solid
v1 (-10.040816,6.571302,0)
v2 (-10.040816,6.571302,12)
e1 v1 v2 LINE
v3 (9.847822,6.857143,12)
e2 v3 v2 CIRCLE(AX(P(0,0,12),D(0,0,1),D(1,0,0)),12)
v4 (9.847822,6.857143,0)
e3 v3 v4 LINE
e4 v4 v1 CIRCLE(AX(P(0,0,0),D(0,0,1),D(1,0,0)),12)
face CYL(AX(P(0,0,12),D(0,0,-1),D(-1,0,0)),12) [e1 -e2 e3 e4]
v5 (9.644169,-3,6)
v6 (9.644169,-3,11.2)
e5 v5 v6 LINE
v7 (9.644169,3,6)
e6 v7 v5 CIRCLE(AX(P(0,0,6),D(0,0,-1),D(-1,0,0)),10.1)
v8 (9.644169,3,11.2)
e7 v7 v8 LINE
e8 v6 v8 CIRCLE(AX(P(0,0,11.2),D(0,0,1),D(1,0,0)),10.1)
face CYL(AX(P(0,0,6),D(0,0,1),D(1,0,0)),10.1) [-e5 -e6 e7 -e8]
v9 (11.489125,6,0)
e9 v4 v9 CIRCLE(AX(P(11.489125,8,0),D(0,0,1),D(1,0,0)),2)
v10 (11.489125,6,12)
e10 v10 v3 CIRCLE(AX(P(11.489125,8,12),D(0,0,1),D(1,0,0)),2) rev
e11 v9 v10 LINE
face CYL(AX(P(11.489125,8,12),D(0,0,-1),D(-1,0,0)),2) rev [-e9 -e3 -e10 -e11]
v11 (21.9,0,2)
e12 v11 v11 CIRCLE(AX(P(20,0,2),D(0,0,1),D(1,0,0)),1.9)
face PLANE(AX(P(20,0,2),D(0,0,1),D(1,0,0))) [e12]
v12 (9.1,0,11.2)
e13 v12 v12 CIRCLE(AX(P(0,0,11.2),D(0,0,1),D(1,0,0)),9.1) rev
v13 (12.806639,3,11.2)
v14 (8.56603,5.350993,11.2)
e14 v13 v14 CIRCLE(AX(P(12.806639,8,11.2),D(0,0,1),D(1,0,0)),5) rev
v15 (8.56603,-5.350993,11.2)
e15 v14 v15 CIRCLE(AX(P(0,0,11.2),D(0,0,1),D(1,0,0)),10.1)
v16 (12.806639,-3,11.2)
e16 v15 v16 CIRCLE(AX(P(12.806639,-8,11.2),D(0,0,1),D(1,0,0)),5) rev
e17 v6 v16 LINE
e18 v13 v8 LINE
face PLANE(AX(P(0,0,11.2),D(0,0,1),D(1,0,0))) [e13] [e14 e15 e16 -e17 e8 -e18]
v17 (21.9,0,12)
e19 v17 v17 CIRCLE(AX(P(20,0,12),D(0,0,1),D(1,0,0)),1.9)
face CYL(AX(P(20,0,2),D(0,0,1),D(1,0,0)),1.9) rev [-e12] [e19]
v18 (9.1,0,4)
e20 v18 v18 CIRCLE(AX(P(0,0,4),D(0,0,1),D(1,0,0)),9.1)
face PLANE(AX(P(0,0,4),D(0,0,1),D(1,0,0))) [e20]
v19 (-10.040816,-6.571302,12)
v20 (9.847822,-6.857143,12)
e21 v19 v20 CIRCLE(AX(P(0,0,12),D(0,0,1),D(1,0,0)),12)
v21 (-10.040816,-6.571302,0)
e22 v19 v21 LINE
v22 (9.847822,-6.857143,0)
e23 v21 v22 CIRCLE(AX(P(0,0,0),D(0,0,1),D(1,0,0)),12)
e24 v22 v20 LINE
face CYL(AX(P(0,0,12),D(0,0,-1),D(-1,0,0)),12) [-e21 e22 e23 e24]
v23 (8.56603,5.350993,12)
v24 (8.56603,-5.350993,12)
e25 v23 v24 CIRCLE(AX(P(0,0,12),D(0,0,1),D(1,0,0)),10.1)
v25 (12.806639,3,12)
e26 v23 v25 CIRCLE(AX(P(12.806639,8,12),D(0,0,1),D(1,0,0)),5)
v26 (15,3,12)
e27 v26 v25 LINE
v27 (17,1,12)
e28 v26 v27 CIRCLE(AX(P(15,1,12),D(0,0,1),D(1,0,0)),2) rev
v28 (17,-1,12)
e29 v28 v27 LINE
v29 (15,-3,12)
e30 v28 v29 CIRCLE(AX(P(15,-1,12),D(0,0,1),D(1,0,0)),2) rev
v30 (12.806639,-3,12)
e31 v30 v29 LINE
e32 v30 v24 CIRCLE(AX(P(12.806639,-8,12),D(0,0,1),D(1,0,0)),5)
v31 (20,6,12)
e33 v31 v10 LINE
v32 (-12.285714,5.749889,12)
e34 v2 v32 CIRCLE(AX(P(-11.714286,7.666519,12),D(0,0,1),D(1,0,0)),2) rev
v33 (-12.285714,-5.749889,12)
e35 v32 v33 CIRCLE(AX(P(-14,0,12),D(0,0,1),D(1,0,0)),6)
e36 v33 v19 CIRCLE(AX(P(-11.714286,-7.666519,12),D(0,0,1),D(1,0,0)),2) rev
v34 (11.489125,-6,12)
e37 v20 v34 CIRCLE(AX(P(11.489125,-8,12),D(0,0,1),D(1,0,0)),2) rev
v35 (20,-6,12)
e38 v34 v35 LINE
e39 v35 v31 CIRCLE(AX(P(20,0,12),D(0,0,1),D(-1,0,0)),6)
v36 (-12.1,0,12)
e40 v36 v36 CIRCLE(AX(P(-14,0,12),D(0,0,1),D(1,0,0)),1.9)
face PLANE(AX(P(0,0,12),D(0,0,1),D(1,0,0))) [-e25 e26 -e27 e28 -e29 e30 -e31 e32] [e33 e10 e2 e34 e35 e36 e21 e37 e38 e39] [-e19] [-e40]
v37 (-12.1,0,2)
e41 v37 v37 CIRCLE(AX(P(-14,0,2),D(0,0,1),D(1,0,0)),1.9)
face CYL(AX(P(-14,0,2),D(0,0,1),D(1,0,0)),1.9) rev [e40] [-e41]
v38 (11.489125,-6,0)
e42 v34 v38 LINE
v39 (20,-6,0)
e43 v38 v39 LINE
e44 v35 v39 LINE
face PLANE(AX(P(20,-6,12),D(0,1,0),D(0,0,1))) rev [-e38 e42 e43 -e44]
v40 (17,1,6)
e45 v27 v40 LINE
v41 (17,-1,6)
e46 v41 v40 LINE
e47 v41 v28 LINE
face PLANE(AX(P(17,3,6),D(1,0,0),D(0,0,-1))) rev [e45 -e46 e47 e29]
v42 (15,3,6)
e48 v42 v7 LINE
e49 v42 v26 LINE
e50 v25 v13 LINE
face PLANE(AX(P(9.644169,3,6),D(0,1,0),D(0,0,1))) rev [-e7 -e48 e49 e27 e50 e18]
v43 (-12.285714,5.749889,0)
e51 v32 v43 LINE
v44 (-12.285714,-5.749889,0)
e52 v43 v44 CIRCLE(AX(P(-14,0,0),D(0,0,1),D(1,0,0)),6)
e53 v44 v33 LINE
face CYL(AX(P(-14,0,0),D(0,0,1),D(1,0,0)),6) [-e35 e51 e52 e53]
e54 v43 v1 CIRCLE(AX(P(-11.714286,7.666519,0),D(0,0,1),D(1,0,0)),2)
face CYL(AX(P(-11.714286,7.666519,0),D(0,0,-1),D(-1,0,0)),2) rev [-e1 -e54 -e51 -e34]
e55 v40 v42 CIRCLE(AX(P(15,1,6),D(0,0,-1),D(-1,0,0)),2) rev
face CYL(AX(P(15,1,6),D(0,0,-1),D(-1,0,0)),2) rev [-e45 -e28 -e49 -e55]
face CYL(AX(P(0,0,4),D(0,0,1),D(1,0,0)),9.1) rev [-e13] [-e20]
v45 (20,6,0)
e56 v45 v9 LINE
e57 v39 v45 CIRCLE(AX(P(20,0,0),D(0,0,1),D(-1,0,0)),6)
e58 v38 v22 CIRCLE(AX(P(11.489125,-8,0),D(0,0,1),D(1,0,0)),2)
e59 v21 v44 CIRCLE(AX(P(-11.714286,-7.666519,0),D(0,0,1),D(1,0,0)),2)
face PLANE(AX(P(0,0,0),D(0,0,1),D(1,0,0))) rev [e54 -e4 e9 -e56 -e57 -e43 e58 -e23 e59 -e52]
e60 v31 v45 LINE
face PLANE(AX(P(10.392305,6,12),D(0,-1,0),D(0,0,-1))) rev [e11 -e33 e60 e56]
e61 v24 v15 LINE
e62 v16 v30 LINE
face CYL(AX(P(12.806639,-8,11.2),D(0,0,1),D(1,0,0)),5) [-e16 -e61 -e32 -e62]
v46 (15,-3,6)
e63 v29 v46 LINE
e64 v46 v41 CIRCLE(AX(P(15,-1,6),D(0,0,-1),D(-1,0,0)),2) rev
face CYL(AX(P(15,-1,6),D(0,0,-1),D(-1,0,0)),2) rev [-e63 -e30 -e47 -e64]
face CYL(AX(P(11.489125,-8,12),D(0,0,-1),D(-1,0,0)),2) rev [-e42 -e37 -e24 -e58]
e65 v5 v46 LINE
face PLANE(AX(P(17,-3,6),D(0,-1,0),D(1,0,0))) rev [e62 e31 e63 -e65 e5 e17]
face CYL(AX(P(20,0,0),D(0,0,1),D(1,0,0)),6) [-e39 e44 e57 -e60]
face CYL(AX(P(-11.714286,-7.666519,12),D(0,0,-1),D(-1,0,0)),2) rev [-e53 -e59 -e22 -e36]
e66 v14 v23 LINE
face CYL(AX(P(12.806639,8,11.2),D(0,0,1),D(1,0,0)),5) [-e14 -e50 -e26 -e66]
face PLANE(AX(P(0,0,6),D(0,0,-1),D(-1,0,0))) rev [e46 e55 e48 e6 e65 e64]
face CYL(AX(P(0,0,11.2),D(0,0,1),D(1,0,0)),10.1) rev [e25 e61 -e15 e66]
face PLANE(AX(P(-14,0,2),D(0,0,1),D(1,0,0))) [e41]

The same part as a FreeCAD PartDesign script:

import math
import FreeCAD as App
import Part
import Sketcher
from FreeCAD import Vector


def edges_at(feature, points):
    """Names of the edges that pass closest to the given points."""
    edges = feature.Shape.Edges
    near = lambda p: min(range(len(edges)), key=lambda i: edges[i].distToShape(Part.Vertex(*p))[0])
    return sorted({f"Edge{near(p) + 1}" for p in points})

doc = App.newDocument("Part")
params = doc.addObject("Spreadsheet::Sheet", "Params")
for row, (alias, value) in enumerate([
    ("sketch1_radius", "12 mm"),
    ("sketch1_height", "12 mm"),
    ("pad1_length", "12 mm"),
    ("sketch2_diameter", "18.2 mm"),
    ("pocket1_length", "8 mm"),
    ("sketch3_radius", "10.1 mm"),
    ("sketch3_height", "6 mm"),
    ("pocket2_length", "6 mm"),
    ("sketch4_radius", "10.1 mm"),
    ("sketch4_height", "6 mm"),
    ("pocket3_length", "0.8 mm"),
    ("sketch5_radius", "6 mm"),
    ("pad2_length", "12 mm"),
    ("sketch6_diameter", "3.8 mm"),
    ("pocket4_length", "10 mm"),
    ("fillet_radius", "5 mm"),
    ("fillet2_radius", "2 mm"),
], start=1):
    params.set(f"A{row}", alias)
    params.set(f"B{row}", "=" + value)
    params.setAlias(f"B{row}", alias)

body = doc.addObject("PartDesign::Body", "Body")

# Sketch on XY plane
sketch1 = doc.addObject("Sketcher::SketchObject", "Sketch")
body.addObject(sketch1)
sketch1.AttachmentSupport = (doc.XY_Plane, [""])
sketch1.MapMode = "FlatFace"
sketch1.addGeometry([
    Part.LineSegment(Vector(20, 6, 0), Vector(10.392305, 6, 0)),
    Part.ArcOfCircle(Part.Circle(Vector(0, 0, 0), Vector(0, 0, 1), 12), math.radians(30), math.radians(330)),
    Part.LineSegment(Vector(10.392305, -6, 0), Vector(20, -6, 0)),
    Part.LineSegment(Vector(20, -6, 0), Vector(20, 6, 0)),
], False)
sketch1.addConstraint([
    Sketcher.Constraint("Coincident", 0, 2, 1, 1),
    Sketcher.Constraint("Coincident", 1, 2, 2, 1),
    Sketcher.Constraint("Coincident", 2, 2, 3, 1),
    Sketcher.Constraint("Coincident", 3, 2, 0, 1),
    Sketcher.Constraint("Horizontal", 0),
    Sketcher.Constraint("Horizontal", 2),
    Sketcher.Constraint("Vertical", 3),
    Sketcher.Constraint("Coincident", 1, 3, -1, 1),
    Sketcher.Constraint("Vertical", 0, 2, 1, 2),
    Sketcher.Constraint("Radius", 1, 12.0),
    Sketcher.Constraint("DistanceY", 3, 1, 3, 2, 12.0),
    Sketcher.Constraint("DistanceX", -1, 1, 2, 2, 20.0),
])
sketch1.setExpression("Constraints[9]", "Params.sketch1_radius")
sketch1.setExpression("Constraints[10]", "Params.sketch1_height")
pad1 = doc.addObject("PartDesign::Pad", "Pad")
body.addObject(pad1)
pad1.Profile = sketch1
pad1.setExpression("Length", "Params.pad1_length")

# Sketch on XY plane
sketch2 = doc.addObject("Sketcher::SketchObject", "Sketch001")
body.addObject(sketch2)
sketch2.AttachmentSupport = (doc.XY_Plane, [""])
sketch2.MapMode = "FlatFace"
sketch2.AttachmentOffset = App.Placement(Vector(0, 0, 12), App.Rotation())
sketch2.addGeometry(Part.Circle(Vector(0, 0, 0), Vector(0, 0, 1), 9.1), False)
sketch2.addConstraint([
    Sketcher.Constraint("Coincident", 0, 3, -1, 1),
    Sketcher.Constraint("Diameter", 0, 18.2),
])
sketch2.setExpression("Constraints[1]", "Params.sketch2_diameter")
pocket1 = doc.addObject("PartDesign::Pocket", "Pocket")
body.addObject(pocket1)
pocket1.Profile = sketch2
pocket1.setExpression("Length", "Params.pocket1_length")

# Sketch on XY plane
sketch3 = doc.addObject("Sketcher::SketchObject", "Sketch002")
body.addObject(sketch3)
sketch3.AttachmentSupport = (doc.XY_Plane, [""])
sketch3.MapMode = "FlatFace"
sketch3.AttachmentOffset = App.Placement(Vector(0, 0, 12), App.Rotation())
sketch3.addGeometry([
    Part.LineSegment(Vector(17, 3, 0), Vector(9.644169, 3, 0)),
    Part.ArcOfCircle(Part.Circle(Vector(0, 0, 0), Vector(0, 0, 1), 10.1), math.radians(-17.279287), math.radians(17.279287)),
    Part.LineSegment(Vector(9.644169, -3, 0), Vector(17, -3, 0)),
    Part.LineSegment(Vector(17, -3, 0), Vector(17, 3, 0)),
], False)
sketch3.addConstraint([
    Sketcher.Constraint("Coincident", 0, 2, 1, 2),
    Sketcher.Constraint("Coincident", 1, 1, 2, 1),
    Sketcher.Constraint("Coincident", 2, 2, 3, 1),
    Sketcher.Constraint("Coincident", 3, 2, 0, 1),
    Sketcher.Constraint("Horizontal", 0),
    Sketcher.Constraint("Horizontal", 2),
    Sketcher.Constraint("Vertical", 3),
    Sketcher.Constraint("Coincident", 1, 3, -1, 1),
    Sketcher.Constraint("Vertical", 0, 2, 1, 1),
    Sketcher.Constraint("Radius", 1, 10.1),
    Sketcher.Constraint("DistanceY", 3, 1, 3, 2, 6.0),
    Sketcher.Constraint("DistanceX", -1, 1, 2, 2, 17.0),
])
sketch3.setExpression("Constraints[9]", "Params.sketch3_radius")
sketch3.setExpression("Constraints[10]", "Params.sketch3_height")
pocket2 = doc.addObject("PartDesign::Pocket", "Pocket001")
body.addObject(pocket2)
pocket2.Profile = sketch3
pocket2.setExpression("Length", "Params.pocket2_length")

# Sketch on XY plane
sketch4 = doc.addObject("Sketcher::SketchObject", "Sketch003")
body.addObject(sketch4)
sketch4.AttachmentSupport = (doc.XY_Plane, [""])
sketch4.MapMode = "FlatFace"
sketch4.AttachmentOffset = App.Placement(Vector(0, 0, 12), App.Rotation())
sketch4.addGeometry([
    Part.LineSegment(Vector(17, -3, 0), Vector(17, 3, 0)),
    Part.LineSegment(Vector(17, 3, 0), Vector(9.644169, 3, 0)),
    Part.ArcOfCircle(Part.Circle(Vector(0, 0, 0), Vector(0, 0, 1), 10.1), math.radians(17.279287), math.radians(342.720713)),
    Part.LineSegment(Vector(9.644169, -3, 0), Vector(17, -3, 0)),
], False)
sketch4.addConstraint([
    Sketcher.Constraint("Coincident", 0, 2, 1, 1),
    Sketcher.Constraint("Coincident", 1, 2, 2, 1),
    Sketcher.Constraint("Coincident", 2, 2, 3, 1),
    Sketcher.Constraint("Coincident", 3, 2, 0, 1),
    Sketcher.Constraint("Vertical", 0),
    Sketcher.Constraint("Horizontal", 1),
    Sketcher.Constraint("Horizontal", 3),
    Sketcher.Constraint("Coincident", 2, 3, -1, 1),
    Sketcher.Constraint("Vertical", 1, 2, 2, 2),
    Sketcher.Constraint("Radius", 2, 10.1),
    Sketcher.Constraint("DistanceY", 0, 1, 0, 2, 6.0),
    Sketcher.Constraint("DistanceX", -1, 1, 0, 2, 17.0),
])
sketch4.setExpression("Constraints[9]", "Params.sketch4_radius")
sketch4.setExpression("Constraints[10]", "Params.sketch4_height")
pocket3 = doc.addObject("PartDesign::Pocket", "Pocket002")
body.addObject(pocket3)
pocket3.Profile = sketch4
pocket3.setExpression("Length", "Params.pocket3_length")

# Sketch on XY plane
sketch5 = doc.addObject("Sketcher::SketchObject", "Sketch004")
body.addObject(sketch5)
sketch5.AttachmentSupport = (doc.XY_Plane, [""])
sketch5.MapMode = "FlatFace"
sketch5.AttachmentOffset = App.Placement(Vector(0, 0, 12), App.Rotation())
sketch5.addGeometry([
    Part.LineSegment(Vector(20, 6, 0), Vector(20, -6, 0)),
    Part.ArcOfCircle(Part.Circle(Vector(20, 0, 0), Vector(0, 0, 1), 6), math.radians(-90), math.radians(90)),
    Part.LineSegment(Vector(-10.857143, -5.111013, 0), Vector(-10.857143, 5.111013, 0)),
    Part.ArcOfCircle(Part.Circle(Vector(-14, 0, 0), Vector(0, 0, 1), 6), math.radians(58.411864), math.radians(301.588136)),
], False)
sketch5.addConstraint([
    Sketcher.Constraint("Coincident", 0, 1, 1, 2),
    Sketcher.Constraint("Coincident", 1, 1, 0, 2),
    Sketcher.Constraint("Coincident", 2, 1, 3, 2),
    Sketcher.Constraint("Coincident", 3, 1, 2, 2),
    Sketcher.Constraint("Vertical", 0),
    Sketcher.Constraint("Vertical", 2),
    Sketcher.Constraint("Equal", 1, 3),
    Sketcher.Constraint("PointOnObject", 1, 3, -1),
    Sketcher.Constraint("PointOnObject", 3, 3, -1),
    Sketcher.Constraint("Vertical", 1, 3, 0, 1),
    Sketcher.Constraint("Radius", 1, 6.0),
    Sketcher.Constraint("DistanceX", -1, 1, 1, 3, 20.0),
    Sketcher.Constraint("DistanceX", 3, 3, -1, 1, 14.0),
    Sketcher.Constraint("DistanceY", 2, 1, 2, 2, 10.222025),
])
sketch5.setExpression("Constraints[10]", "Params.sketch5_radius")
pad2 = doc.addObject("PartDesign::Pad", "Pad001")
body.addObject(pad2)
pad2.Profile = sketch5
pad2.setExpression("Length", "Params.pad2_length")
pad2.Reversed = True

# Sketch on XY plane
sketch6 = doc.addObject("Sketcher::SketchObject", "Sketch005")
body.addObject(sketch6)
sketch6.AttachmentSupport = (doc.XY_Plane, [""])
sketch6.MapMode = "FlatFace"
sketch6.AttachmentOffset = App.Placement(Vector(0, 0, 12), App.Rotation())
sketch6.addGeometry([
    Part.Circle(Vector(-14, 0, 0), Vector(0, 0, 1), 1.9),
    Part.Circle(Vector(20, 0, 0), Vector(0, 0, 1), 1.9),
], False)
sketch6.addConstraint([
    Sketcher.Constraint("Equal", 0, 1),
    Sketcher.Constraint("PointOnObject", 0, 3, -1),
    Sketcher.Constraint("PointOnObject", 1, 3, -1),
    Sketcher.Constraint("Diameter", 0, 3.8),
    Sketcher.Constraint("DistanceX", 0, 3, -1, 1, 14.0),
    Sketcher.Constraint("DistanceX", -1, 1, 1, 3, 20.0),
])
sketch6.setExpression("Constraints[3]", "Params.sketch6_diameter")
pocket4 = doc.addObject("PartDesign::Pocket", "Pocket003")
body.addObject(pocket4)
pocket4.Profile = sketch6
pocket4.setExpression("Length", "Params.pocket4_length")
doc.recompute()

fillet = doc.addObject("PartDesign::Fillet", "Fillet")
body.addObject(fillet)
fillet.Base = (pocket4, edges_at(pocket4, [(9.644, 3, 11.6), (9.644, -3, 11.6)]))
fillet.setExpression("Radius", "Params.fillet_radius")
doc.recompute()

fillet2 = doc.addObject("PartDesign::Fillet", "Fillet001")
body.addObject(fillet2)
fillet2.Base = (fillet, edges_at(fillet, [
    (17, 3, 9),
    (17, -3, 9),
    (-10.857, -5.111, 6),
    (-10.857, 5.111, 6),
    (10.392, 6, 6),
    (10.392, -6, 6),
]))
fillet2.setExpression("Radius", "Params.fillet2_radius")

doc.recompute()
